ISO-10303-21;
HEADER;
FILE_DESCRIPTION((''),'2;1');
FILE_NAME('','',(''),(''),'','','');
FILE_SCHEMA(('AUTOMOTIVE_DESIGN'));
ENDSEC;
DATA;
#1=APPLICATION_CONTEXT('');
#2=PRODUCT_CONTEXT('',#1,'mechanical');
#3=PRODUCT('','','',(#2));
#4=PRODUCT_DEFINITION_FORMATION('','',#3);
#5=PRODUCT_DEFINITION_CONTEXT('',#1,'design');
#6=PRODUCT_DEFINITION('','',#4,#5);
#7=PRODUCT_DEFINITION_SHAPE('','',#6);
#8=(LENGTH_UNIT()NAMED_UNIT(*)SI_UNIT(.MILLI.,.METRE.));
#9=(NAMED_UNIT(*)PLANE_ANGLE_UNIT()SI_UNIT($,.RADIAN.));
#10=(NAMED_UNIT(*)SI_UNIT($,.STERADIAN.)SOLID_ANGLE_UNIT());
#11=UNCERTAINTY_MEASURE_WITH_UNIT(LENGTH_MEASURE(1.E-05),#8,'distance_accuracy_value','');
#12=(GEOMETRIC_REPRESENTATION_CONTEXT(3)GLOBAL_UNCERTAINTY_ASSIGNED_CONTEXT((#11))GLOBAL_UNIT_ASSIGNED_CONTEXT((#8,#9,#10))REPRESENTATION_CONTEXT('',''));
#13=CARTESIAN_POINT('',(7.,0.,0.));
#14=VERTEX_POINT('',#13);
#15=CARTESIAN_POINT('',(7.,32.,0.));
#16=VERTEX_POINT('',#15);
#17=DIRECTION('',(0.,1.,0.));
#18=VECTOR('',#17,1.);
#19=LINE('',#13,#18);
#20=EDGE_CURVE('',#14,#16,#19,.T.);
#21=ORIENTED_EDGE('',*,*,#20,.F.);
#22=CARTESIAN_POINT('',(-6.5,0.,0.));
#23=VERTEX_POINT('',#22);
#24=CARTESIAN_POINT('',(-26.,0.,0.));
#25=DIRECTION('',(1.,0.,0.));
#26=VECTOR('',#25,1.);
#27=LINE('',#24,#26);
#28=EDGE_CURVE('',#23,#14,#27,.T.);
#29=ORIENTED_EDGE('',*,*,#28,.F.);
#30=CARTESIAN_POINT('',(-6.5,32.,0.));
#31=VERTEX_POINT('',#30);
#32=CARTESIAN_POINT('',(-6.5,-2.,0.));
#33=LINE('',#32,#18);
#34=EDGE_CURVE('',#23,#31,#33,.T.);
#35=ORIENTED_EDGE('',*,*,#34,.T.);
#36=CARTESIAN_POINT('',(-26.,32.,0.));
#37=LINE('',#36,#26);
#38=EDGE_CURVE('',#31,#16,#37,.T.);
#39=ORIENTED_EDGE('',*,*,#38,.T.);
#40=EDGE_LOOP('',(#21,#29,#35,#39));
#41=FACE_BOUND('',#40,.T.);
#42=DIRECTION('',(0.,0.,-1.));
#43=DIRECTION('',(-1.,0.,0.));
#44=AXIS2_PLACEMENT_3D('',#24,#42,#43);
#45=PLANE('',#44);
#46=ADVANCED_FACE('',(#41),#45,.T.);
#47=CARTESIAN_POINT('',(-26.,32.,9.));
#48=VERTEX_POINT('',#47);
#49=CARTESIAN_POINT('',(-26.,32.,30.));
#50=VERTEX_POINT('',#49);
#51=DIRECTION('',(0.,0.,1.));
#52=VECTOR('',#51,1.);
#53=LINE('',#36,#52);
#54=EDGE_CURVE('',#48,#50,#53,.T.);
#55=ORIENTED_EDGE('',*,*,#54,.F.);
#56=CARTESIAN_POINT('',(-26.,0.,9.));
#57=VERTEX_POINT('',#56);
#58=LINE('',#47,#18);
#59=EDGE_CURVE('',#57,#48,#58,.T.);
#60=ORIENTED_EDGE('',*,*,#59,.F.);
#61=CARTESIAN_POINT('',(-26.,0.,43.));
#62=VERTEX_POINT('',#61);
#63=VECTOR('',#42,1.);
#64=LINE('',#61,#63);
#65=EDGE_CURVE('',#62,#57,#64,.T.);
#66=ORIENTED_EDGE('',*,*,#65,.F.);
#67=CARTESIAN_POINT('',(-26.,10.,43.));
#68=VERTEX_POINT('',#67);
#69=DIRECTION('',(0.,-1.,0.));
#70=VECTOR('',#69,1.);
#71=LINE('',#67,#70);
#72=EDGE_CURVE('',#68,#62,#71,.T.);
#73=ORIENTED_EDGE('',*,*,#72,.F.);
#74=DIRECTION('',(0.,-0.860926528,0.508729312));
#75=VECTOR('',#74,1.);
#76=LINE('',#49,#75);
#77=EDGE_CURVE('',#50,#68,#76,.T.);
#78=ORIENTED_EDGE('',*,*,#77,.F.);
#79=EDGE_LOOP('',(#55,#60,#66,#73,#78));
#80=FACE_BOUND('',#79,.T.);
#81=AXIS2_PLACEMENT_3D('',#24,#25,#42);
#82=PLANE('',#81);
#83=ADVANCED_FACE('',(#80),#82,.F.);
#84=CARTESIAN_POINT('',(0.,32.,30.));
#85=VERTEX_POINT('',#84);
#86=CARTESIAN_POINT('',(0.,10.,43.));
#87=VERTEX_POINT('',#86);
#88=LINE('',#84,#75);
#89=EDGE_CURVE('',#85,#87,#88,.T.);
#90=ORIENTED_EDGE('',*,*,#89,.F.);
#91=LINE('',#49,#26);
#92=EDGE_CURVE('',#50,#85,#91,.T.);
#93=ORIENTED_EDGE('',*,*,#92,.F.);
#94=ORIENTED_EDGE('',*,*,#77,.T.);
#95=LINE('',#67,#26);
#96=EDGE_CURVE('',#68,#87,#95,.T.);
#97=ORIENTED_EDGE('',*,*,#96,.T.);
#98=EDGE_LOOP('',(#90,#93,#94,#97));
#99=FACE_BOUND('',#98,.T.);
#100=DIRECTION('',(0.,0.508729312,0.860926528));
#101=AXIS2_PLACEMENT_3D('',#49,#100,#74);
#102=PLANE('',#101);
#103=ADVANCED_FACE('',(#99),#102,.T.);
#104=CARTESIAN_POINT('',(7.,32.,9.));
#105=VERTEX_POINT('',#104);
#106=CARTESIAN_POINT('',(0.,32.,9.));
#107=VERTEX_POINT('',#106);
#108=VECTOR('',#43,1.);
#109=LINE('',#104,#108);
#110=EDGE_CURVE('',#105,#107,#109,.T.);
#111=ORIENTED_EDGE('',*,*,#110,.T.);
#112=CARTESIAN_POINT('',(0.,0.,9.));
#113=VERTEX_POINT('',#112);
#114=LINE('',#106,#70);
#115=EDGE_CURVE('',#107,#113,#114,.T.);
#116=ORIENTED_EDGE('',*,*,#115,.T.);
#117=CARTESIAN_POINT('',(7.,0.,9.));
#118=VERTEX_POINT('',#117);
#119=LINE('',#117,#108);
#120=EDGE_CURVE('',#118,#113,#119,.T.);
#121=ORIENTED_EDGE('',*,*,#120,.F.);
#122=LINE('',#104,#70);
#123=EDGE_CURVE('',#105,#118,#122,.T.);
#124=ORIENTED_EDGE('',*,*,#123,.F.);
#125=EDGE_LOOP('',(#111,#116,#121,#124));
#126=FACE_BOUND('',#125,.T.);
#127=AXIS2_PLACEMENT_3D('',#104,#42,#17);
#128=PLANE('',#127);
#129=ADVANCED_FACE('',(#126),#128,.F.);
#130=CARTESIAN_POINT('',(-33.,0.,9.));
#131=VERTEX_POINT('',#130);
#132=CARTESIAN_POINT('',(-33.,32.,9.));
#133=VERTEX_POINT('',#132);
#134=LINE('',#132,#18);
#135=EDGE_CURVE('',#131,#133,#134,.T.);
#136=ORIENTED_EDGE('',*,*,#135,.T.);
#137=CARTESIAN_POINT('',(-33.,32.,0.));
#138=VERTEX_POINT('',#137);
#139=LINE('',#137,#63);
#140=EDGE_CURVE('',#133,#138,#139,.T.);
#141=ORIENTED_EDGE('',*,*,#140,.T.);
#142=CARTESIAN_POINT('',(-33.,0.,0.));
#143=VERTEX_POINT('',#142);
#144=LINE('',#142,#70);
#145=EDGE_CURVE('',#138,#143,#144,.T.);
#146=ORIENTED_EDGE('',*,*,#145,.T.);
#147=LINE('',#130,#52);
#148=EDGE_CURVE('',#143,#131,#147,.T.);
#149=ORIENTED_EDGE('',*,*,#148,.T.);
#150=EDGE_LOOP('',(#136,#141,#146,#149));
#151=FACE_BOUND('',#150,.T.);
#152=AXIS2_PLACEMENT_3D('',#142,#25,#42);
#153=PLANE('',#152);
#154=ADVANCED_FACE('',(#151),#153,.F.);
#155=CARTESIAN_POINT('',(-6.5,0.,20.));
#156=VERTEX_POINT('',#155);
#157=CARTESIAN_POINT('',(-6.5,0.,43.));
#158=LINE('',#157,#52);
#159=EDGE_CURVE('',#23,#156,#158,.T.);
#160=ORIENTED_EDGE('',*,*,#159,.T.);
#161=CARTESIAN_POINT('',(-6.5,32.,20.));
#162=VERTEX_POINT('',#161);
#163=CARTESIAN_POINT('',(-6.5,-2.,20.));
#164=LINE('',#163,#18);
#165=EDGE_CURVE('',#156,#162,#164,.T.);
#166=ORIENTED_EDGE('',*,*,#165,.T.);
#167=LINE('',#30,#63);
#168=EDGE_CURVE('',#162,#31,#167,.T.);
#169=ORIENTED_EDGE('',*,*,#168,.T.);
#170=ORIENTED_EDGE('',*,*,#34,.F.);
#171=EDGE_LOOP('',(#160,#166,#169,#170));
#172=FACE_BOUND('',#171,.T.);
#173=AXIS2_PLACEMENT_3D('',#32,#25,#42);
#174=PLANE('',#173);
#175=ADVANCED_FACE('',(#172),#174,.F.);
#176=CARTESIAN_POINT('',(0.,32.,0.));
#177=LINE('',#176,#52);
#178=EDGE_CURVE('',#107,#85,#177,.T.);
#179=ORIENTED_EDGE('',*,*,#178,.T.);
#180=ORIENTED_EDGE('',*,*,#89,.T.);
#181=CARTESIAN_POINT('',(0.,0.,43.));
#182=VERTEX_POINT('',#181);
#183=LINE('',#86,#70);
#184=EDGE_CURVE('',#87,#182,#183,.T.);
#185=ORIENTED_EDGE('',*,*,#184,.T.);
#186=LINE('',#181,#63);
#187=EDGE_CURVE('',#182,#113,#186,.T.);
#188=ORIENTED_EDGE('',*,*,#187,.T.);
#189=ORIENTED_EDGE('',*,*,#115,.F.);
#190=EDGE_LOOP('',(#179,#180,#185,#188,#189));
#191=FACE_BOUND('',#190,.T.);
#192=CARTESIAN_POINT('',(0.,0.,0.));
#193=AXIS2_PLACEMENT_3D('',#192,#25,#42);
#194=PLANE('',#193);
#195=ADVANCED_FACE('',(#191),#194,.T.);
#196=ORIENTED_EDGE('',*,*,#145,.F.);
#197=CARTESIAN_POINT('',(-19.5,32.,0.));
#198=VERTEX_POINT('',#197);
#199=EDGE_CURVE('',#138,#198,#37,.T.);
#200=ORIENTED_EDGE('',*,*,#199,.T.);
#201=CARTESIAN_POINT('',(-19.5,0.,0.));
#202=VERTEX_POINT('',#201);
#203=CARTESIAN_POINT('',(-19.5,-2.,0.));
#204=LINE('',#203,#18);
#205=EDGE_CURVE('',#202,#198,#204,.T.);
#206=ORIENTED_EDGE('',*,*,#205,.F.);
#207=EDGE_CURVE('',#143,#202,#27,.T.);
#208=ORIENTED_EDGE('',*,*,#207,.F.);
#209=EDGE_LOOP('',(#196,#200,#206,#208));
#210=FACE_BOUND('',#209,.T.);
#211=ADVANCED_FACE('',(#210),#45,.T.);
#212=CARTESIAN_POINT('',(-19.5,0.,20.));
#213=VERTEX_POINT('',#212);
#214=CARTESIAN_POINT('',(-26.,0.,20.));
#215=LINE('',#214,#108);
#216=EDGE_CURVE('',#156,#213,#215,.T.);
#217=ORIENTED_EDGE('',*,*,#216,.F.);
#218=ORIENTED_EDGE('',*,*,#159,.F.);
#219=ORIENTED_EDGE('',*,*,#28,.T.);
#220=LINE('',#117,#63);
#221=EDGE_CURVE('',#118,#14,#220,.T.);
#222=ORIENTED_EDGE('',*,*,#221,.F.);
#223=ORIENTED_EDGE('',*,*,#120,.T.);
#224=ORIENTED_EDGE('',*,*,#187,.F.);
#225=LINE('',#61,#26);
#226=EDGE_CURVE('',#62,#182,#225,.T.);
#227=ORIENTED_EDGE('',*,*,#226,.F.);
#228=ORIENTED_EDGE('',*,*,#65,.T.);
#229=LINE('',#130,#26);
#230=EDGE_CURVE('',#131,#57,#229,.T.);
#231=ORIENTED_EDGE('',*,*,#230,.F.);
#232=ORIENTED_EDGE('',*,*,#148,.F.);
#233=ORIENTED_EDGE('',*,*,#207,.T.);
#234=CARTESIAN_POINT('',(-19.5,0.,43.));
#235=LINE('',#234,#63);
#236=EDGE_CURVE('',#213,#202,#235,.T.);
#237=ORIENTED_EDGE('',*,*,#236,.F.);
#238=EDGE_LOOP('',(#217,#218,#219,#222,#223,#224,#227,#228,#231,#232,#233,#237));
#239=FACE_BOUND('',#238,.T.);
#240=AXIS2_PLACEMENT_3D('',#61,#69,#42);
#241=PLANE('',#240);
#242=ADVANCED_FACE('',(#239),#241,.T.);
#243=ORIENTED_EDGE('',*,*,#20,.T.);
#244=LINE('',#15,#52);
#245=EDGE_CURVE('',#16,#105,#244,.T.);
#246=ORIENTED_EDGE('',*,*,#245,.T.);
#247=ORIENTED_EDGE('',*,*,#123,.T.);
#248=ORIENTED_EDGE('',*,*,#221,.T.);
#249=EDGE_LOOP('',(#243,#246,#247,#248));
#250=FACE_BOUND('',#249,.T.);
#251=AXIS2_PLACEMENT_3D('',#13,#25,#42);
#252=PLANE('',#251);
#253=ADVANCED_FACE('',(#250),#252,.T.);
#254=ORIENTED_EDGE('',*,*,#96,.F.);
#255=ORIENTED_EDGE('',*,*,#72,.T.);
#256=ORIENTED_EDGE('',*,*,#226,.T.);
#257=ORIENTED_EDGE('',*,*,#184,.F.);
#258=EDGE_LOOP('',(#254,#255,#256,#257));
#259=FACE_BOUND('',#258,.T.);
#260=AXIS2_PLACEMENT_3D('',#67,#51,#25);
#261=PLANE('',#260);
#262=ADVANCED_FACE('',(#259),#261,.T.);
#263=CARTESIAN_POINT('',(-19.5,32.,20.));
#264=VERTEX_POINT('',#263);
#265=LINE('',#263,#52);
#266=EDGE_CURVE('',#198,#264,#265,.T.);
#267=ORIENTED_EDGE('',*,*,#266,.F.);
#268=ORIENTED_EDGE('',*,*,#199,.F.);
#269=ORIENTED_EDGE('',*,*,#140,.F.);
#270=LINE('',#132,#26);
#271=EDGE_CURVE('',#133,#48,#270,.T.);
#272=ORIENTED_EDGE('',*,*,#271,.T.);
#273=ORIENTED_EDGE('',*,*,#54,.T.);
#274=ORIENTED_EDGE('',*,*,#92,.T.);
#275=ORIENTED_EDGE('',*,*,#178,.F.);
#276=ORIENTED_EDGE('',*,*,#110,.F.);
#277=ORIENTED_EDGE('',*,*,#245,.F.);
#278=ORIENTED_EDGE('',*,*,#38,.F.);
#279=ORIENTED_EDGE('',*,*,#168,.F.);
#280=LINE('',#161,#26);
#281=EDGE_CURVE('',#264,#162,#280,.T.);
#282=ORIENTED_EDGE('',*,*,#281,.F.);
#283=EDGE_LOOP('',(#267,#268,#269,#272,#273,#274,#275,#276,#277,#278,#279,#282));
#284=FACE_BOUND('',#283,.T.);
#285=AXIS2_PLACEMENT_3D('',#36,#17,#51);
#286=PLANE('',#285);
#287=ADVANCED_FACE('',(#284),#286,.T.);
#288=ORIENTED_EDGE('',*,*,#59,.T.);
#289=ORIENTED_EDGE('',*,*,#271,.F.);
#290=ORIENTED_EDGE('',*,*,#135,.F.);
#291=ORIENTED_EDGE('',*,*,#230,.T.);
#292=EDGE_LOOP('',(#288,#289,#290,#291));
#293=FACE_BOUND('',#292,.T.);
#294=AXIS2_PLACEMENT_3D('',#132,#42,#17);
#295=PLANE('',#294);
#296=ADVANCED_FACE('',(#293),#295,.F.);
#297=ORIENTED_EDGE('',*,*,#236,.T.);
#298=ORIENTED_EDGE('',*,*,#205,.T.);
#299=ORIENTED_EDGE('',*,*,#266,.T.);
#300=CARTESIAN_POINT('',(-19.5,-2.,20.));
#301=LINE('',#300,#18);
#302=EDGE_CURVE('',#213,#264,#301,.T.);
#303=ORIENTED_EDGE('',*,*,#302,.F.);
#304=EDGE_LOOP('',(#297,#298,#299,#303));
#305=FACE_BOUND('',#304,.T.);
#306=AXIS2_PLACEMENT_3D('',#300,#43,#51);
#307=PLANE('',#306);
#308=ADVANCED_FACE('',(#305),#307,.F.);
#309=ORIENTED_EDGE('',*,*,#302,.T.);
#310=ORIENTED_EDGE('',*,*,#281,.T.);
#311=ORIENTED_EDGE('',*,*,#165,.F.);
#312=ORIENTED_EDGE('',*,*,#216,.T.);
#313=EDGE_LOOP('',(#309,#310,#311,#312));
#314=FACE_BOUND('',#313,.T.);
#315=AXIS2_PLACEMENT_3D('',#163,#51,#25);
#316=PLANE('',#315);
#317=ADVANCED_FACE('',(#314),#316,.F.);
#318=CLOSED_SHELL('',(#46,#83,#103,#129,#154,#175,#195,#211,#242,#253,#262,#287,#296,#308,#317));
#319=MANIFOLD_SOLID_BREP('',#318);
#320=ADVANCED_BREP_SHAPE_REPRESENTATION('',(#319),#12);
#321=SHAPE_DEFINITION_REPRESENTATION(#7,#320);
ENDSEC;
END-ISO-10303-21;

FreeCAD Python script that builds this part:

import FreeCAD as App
import Part
import Sketcher

V = App.Vector

doc = App.newDocument("Part")
params = doc.addObject("Spreadsheet::Sheet", "Params")
for row, (alias, value) in enumerate([
    ("sketch1_width", "32 mm"),
    ("sketch1_width2", "10 mm"),
    ("sketch1_height", "43 mm"),
    ("sketch1_height2", "30 mm"),
    ("pad1_length", "26 mm"),
    ("sketch2_width", "32 mm"),
    ("sketch2_height", "9 mm"),
    ("pad2_length", "7 mm"),
    ("sketch3_width", "32 mm"),
    ("sketch3_height", "9 mm"),
    ("pad3_length", "7 mm"),
    ("sketch4_width", "13 mm"),
    ("sketch4_height", "20 mm"),
    ("pocket1_length", "34 mm"),
], start=1):
    params.set(f"A{row}", alias)
    params.set(f"B{row}", "=" + value)
    params.setAlias(f"B{row}", alias)

body = doc.addObject("PartDesign::Body", "Body")

sketch1 = body.newObject("Sketcher::SketchObject", "Sketch")
sketch1.AttachmentSupport = (doc.getObject("YZ_Plane"), [""])
sketch1.MapMode = "FlatFace"
sketch1.addGeometry([
    Part.LineSegment(V(0, 43, 0), V(0, 0, 0)),
    Part.LineSegment(V(0, 0, 0), V(32, 0, 0)),
    Part.LineSegment(V(32, 0, 0), V(32, 30, 0)),
    Part.LineSegment(V(32, 30, 0), V(10, 43, 0)),
    Part.LineSegment(V(10, 43, 0), V(0, 43, 0)),
], False)
sketch1.addConstraint([
    Sketcher.Constraint("Coincident", 0, 2, 1, 1),
    Sketcher.Constraint("Coincident", 1, 2, 2, 1),
    Sketcher.Constraint("Coincident", 2, 2, 3, 1),
    Sketcher.Constraint("Coincident", 3, 2, 4, 1),
    Sketcher.Constraint("Coincident", 4, 2, 0, 1),
    Sketcher.Constraint("Vertical", 0),
    Sketcher.Constraint("Horizontal", 1),
    Sketcher.Constraint("Vertical", 2),
    Sketcher.Constraint("Horizontal", 4),
    Sketcher.Constraint("Coincident", 0, 2, -1, 1),
    Sketcher.Constraint("DistanceX", 1, 1, 1, 2, 32.0),
    Sketcher.Constraint("DistanceX", 4, 2, 4, 1, 10.0),
    Sketcher.Constraint("DistanceY", 0, 2, 0, 1, 43.0),
    Sketcher.Constraint("DistanceY", 2, 1, 2, 2, 30.0),
])
sketch1.setExpression("Constraints[10]", "Params.sketch1_width")
sketch1.setExpression("Constraints[11]", "Params.sketch1_width2")
sketch1.setExpression("Constraints[12]", "Params.sketch1_height")
sketch1.setExpression("Constraints[13]", "Params.sketch1_height2")
pad1 = body.newObject("PartDesign::Pad", "Pad")
pad1.Profile = sketch1
pad1.setExpression("Length", "Params.pad1_length")
pad1.Reversed = True

sketch2 = body.newObject("Sketcher::SketchObject", "Sketch001")
sketch2.AttachmentSupport = (doc.getObject("YZ_Plane"), [""])
sketch2.MapMode = "FlatFace"
sketch2.addGeometry([
    Part.LineSegment(V(32, 9, 0), V(0, 9, 0)),
    Part.LineSegment(V(0, 9, 0), V(0, 0, 0)),
    Part.LineSegment(V(0, 0, 0), V(32, 0, 0)),
    Part.LineSegment(V(32, 0, 0), V(32, 9, 0)),
], False)
sketch2.addConstraint([
    Sketcher.Constraint("Coincident", 0, 2, 1, 1),
    Sketcher.Constraint("Coincident", 1, 2, 2, 1),
    Sketcher.Constraint("Coincident", 2, 2, 3, 1),
    Sketcher.Constraint("Coincident", 3, 2, 0, 1),
    Sketcher.Constraint("Horizontal", 0),
    Sketcher.Constraint("Vertical", 1),
    Sketcher.Constraint("Horizontal", 2),
    Sketcher.Constraint("Vertical", 3),
    Sketcher.Constraint("Coincident", 1, 2, -1, 1),
    Sketcher.Constraint("DistanceX", 0, 2, 0, 1, 32.0),
    Sketcher.Constraint("DistanceY", 1, 2, 1, 1, 9.0),
])
sketch2.setExpression("Constraints[9]", "Params.sketch2_width")
sketch2.setExpression("Constraints[10]", "Params.sketch2_height")
pad2 = body.newObject("PartDesign::Pad", "Pad001")
pad2.Profile = sketch2
pad2.setExpression("Length", "Params.pad2_length")

sketch3 = body.newObject("Sketcher::SketchObject", "Sketch002")
sketch3.AttachmentSupport = (doc.getObject("YZ_Plane"), [""])
sketch3.MapMode = "FlatFace"
sketch3.AttachmentOffset = App.Placement(V(0, 0, -26), App.Rotation())
sketch3.addGeometry([
    Part.LineSegment(V(32, 0, 0), V(0, 0, 0)),
    Part.LineSegment(V(0, 0, 0), V(0, 9, 0)),
    Part.LineSegment(V(0, 9, 0), V(32, 9, 0)),
    Part.LineSegment(V(32, 9, 0), V(32, 0, 0)),
], False)
sketch3.addConstraint([
    Sketcher.Constraint("Coincident", 0, 2, 1, 1),
    Sketcher.Constraint("Coincident", 1, 2, 2, 1),
    Sketcher.Constraint("Coincident", 2, 2, 3, 1),
    Sketcher.Constraint("Coincident", 3, 2, 0, 1),
    Sketcher.Constraint("Horizontal", 0),
    Sketcher.Constraint("Vertical", 1),
    Sketcher.Constraint("Horizontal", 2),
    Sketcher.Constraint("Vertical", 3),
    Sketcher.Constraint("Coincident", 0, 2, -1, 1),
    Sketcher.Constraint("DistanceX", 0, 2, 0, 1, 32.0),
    Sketcher.Constraint("DistanceY", 1, 1, 1, 2, 9.0),
])
sketch3.setExpression("Constraints[9]", "Params.sketch3_width")
sketch3.setExpression("Constraints[10]", "Params.sketch3_height")
pad3 = body.newObject("PartDesign::Pad", "Pad002")
pad3.Profile = sketch3
pad3.setExpression("Length", "Params.pad3_length")
pad3.Reversed = True

sketch4 = body.newObject("Sketcher::SketchObject", "Sketch003")
sketch4.AttachmentSupport = (doc.getObject("XZ_Plane"), [""])
sketch4.MapMode = "FlatFace"
sketch4.AttachmentOffset = App.Placement(V(0, 0, -32), App.Rotation())
sketch4.addGeometry([
    Part.LineSegment(V(-20, 0, 0), V(-20, 20, 0)),
    Part.LineSegment(V(-20, 20, 0), V(-6, 20, 0)),
    Part.LineSegment(V(-6, 20, 0), V(-6, 0, 0)),
    Part.LineSegment(V(-6, 0, 0), V(-20, 0, 0)),
], False)
sketch4.addConstraint([
    Sketcher.Constraint("Coincident", 0, 2, 1, 1),
    Sketcher.Constraint("Coincident", 1, 2, 2, 1),
    Sketcher.Constraint("Coincident", 2, 2, 3, 1),
    Sketcher.Constraint("Coincident", 3, 2, 0, 1),
    Sketcher.Constraint("Vertical", 0),
    Sketcher.Constraint("Horizontal", 1),
    Sketcher.Constraint("Vertical", 2),
    Sketcher.Constraint("Horizontal", 3),
    Sketcher.Constraint("PointOnObject", 2, 2, -1),
    Sketcher.Constraint("DistanceX", 1, 1, 1, 2, 13.0),
    Sketcher.Constraint("DistanceY", 0, 1, 0, 2, 20.0),
    Sketcher.Constraint("DistanceX", 0, 2, -1, 1, 19.5),
])
sketch4.setExpression("Constraints[9]", "Params.sketch4_width")
sketch4.setExpression("Constraints[10]", "Params.sketch4_height")
pocket1 = body.newObject("PartDesign::Pocket", "Pocket")
pocket1.Profile = sketch4
pocket1.setExpression("Length", "Params.pocket1_length")
pocket1.Reversed = True

doc.recompute()
